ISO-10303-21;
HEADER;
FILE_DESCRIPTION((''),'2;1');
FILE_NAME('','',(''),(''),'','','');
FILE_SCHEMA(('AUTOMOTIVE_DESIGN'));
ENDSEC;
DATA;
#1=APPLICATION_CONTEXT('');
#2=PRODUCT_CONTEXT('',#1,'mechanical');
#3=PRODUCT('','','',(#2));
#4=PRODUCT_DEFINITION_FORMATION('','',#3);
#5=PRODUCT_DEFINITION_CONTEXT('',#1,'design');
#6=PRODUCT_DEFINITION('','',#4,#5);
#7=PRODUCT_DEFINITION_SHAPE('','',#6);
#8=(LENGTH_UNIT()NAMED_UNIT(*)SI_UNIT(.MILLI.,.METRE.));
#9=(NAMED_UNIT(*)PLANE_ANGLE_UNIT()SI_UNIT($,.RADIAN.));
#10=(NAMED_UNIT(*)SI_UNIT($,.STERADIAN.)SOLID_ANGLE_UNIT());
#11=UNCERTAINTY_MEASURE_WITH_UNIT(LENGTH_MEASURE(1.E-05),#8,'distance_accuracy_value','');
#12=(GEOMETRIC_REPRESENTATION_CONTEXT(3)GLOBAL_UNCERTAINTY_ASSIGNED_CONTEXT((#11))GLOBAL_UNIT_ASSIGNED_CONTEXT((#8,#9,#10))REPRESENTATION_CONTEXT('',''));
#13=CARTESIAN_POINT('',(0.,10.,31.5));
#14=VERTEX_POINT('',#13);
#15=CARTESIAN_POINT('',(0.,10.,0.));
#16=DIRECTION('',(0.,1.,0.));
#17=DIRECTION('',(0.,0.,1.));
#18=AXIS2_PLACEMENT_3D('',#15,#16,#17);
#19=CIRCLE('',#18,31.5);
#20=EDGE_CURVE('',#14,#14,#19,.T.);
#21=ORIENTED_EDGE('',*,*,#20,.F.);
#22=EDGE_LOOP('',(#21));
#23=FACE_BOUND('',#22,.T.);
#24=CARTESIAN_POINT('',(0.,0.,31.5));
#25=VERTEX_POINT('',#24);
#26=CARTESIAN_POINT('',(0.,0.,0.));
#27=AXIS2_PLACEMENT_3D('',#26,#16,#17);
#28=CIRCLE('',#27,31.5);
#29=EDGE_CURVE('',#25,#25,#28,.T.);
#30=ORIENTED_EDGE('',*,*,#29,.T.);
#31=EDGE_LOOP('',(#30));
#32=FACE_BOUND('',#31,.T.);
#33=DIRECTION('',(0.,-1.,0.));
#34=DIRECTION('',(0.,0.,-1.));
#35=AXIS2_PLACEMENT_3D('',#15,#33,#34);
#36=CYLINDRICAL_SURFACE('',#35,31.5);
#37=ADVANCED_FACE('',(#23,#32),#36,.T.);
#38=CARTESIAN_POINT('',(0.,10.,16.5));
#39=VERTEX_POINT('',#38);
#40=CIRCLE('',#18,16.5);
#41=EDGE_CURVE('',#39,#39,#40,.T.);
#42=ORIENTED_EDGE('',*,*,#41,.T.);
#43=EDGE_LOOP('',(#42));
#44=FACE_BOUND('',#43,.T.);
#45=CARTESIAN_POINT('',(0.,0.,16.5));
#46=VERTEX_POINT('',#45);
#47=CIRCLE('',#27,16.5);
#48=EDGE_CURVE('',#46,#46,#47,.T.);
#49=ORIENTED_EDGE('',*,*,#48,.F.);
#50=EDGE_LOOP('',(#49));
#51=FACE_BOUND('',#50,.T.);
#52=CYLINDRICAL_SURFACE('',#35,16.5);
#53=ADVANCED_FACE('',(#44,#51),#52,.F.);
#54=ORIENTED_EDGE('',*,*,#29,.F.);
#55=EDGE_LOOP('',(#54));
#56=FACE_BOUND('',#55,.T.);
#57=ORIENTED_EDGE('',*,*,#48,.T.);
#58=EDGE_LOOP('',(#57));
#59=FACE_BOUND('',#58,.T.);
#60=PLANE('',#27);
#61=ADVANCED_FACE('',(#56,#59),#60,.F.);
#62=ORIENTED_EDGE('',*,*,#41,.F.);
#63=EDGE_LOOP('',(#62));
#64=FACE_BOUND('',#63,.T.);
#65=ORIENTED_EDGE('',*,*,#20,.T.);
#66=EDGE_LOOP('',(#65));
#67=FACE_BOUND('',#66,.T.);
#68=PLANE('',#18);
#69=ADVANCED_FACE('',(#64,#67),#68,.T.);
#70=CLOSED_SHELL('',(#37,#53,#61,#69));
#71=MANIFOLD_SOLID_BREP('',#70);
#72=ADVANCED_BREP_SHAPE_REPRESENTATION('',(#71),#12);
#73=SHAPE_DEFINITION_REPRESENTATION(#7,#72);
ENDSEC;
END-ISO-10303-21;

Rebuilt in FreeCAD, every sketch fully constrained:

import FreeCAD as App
import Part
import Sketcher

V = App.Vector

doc = App.newDocument("Part")
body = doc.addObject("PartDesign::Body", "Body")

sketch1 = body.newObject("Sketcher::SketchObject", "Sketch")
sketch1.AttachmentSupport = (doc.getObject("XZ_Plane"), [""])
sketch1.MapMode = "FlatFace"
sketch1.addGeometry([
    Part.Circle(V(0, 0, 0), V(0, 0, 1), 32),
    Part.Circle(V(0, 0, 0), V(0, 0, 1), 16),
], False)
sketch1.addConstraint([
    Sketcher.Constraint("Coincident", 0, 3, -1, 1),
    Sketcher.Constraint("Coincident", 1, 3, -1, 1),
    Sketcher.Constraint("Diameter", 0, 63.0),
    Sketcher.Constraint("Diameter", 1, 33.0),
])
pad1 = body.newObject("PartDesign::Pad", "Pad")
pad1.Profile = sketch1
pad1.Length = 10
pad1.Reversed = True

doc.recompute()
